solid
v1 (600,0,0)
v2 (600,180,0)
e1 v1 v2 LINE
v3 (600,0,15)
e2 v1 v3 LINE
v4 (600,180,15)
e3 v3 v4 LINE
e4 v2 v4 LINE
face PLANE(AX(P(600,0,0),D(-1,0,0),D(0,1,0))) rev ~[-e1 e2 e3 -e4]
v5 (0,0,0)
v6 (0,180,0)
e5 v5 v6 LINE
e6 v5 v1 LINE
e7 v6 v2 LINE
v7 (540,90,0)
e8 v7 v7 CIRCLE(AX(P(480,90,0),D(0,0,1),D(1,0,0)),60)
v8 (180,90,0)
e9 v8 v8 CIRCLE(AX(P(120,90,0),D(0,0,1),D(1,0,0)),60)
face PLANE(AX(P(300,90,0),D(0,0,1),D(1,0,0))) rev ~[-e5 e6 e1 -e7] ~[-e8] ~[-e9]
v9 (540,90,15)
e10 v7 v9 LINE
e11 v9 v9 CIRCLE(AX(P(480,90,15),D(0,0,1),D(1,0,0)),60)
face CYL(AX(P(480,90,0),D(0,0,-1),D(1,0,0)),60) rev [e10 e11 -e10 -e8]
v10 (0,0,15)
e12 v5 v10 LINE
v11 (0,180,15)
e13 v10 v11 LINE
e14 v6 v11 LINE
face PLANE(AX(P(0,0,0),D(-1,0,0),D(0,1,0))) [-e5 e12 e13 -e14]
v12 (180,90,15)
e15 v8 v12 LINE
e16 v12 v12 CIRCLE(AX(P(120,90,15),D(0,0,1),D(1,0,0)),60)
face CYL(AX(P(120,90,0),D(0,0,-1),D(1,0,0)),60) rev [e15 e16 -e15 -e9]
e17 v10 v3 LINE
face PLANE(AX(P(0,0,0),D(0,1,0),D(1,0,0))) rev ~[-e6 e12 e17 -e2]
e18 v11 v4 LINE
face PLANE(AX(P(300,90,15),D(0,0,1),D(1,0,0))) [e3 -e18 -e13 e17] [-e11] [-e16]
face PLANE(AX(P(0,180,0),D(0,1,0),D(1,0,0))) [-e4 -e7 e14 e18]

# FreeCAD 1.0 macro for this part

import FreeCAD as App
import Part
import Sketcher
from FreeCAD import Vector


def add_polygon(sketch, points):
    """Adds a closed chain of lines whose ends are joined by coincident constraints."""
    first, n = sketch.GeometryCount, len(points)
    for a, b in zip(points, points[1:] + points[:1]):
        sketch.addGeometry(Part.LineSegment(App.Vector(*a, 0), App.Vector(*b, 0)), False)
    for i in range(n):
        sketch.addConstraint(Sketcher.Constraint("Coincident", first + i, 2, first + (i + 1) % n, 1))

doc = App.newDocument("Part")
body = doc.addObject("PartDesign::Body", "Body")

sketch1 = body.newObject("Sketcher::SketchObject", "Sketch")
sketch1.AttachmentSupport = (doc.getObject("XY_Plane"), [""])
sketch1.MapMode = "FlatFace"
add_polygon(sketch1, [(0, 180), (0, 0), (600, 0), (600, 180)])
sketch1.addGeometry(Part.Circle(Vector(120, 90, 0), Vector(0, 0, 1), 60), False)
sketch1.addGeometry(Part.Circle(Vector(480, 90, 0), Vector(0, 0, 1), 60), False)
sketch1.addConstraint([
    Sketcher.Constraint("Vertical", 0),
    Sketcher.Constraint("Horizontal", 1),
    Sketcher.Constraint("Vertical", 2),
    Sketcher.Constraint("Horizontal", 3),
    Sketcher.Constraint("Coincident", 0, 2, -1, 1),
    Sketcher.Constraint("Equal", 4, 5),
    Sketcher.Constraint("Horizontal", 4, 3, 5, 3),
    Sketcher.Constraint("Diameter", 4, 120.0),
    Sketcher.Constraint("DistanceX", 1, 1, 1, 2, 600.0),
    Sketcher.Constraint("DistanceY", 0, 2, 0, 1, 180.0),
    Sketcher.Constraint("DistanceX", -1, 1, 4, 3, 120.0),
    Sketcher.Constraint("DistanceY", -1, 1, 4, 3, 90.0),
    Sketcher.Constraint("DistanceX", -1, 1, 5, 3, 480.0),
])
pad1 = body.newObject("PartDesign::Pad", "Pad")
pad1.Profile = sketch1
pad1.Length = 15

doc.recompute()
